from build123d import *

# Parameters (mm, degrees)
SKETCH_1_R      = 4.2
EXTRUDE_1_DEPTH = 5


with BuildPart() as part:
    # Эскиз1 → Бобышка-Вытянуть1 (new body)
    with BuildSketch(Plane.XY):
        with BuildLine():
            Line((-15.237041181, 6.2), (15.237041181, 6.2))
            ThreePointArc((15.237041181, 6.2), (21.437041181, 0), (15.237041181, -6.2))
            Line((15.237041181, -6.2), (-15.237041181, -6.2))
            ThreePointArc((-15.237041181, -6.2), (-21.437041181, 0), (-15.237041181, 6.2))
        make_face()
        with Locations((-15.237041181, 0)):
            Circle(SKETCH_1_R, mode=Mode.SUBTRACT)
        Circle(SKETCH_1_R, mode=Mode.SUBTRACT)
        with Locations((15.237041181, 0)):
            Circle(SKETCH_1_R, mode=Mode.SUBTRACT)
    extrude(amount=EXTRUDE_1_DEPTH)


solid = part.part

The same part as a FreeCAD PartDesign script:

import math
import FreeCAD as App
import Part
import Sketcher
from FreeCAD import Vector

doc = App.newDocument("Part")
params = doc.addObject("Spreadsheet::Sheet", "Params")
for row, (alias, value) in enumerate([
    ("sketch1_diameter", "8.4 mm"),
    ("sketch1_radius", "6.2 mm"),
    ("pad1_length", "5 mm"),
], start=1):
    params.set(f"A{row}", alias)
    params.set(f"B{row}", "=" + value)
    params.setAlias(f"B{row}", alias)

body = doc.addObject("PartDesign::Body", "Body")

sketch1 = doc.addObject("Sketcher::SketchObject", "Sketch")
body.addObject(sketch1)
sketch1.AttachmentSupport = (doc.XY_Plane, [""])
sketch1.MapMode = "FlatFace"
sketch1.addGeometry(Part.LineSegment(Vector(15.2, 6.2, 0), Vector(-15.2, 6.2, 0)), False)
sketch1.addGeometry(Part.ArcOfCircle(Part.Circle(Vector(-15.2, 0, 0), Vector(0, 0, 1), 6.2), math.radians(90), math.radians(270)), False)
sketch1.addGeometry(Part.LineSegment(Vector(-15.2, -6.2, 0), Vector(15.2, -6.2, 0)), False)
sketch1.addGeometry(Part.ArcOfCircle(Part.Circle(Vector(15.2, 0, 0), Vector(0, 0, 1), 6.2), math.radians(-90), math.radians(90)), False)
sketch1.addGeometry(Part.Circle(Vector(15.2, 0, 0), Vector(0, 0, 1), 4.2), False)
sketch1.addGeometry(Part.Circle(Vector(0, 0, 0), Vector(0, 0, 1), 4.2), False)
sketch1.addGeometry(Part.Circle(Vector(-15.2, 0, 0), Vector(0, 0, 1), 4.2), False)
sketch1.addConstraint(Sketcher.Constraint("Tangent", 0, 2, 1, 1))
sketch1.addConstraint(Sketcher.Constraint("Tangent", 1, 2, 2, 1))
sketch1.addConstraint(Sketcher.Constraint("Tangent", 2, 2, 3, 1))
sketch1.addConstraint(Sketcher.Constraint("Tangent", 3, 2, 0, 1))
sketch1.addConstraint(Sketcher.Constraint("Horizontal", 0))
sketch1.addConstraint(Sketcher.Constraint("Horizontal", 2))
sketch1.addConstraint(Sketcher.Constraint("Coincident", 5, 3, -1, 1))
sketch1.addConstraint(Sketcher.Constraint("Coincident", 4, 3, 3, 3))
sketch1.addConstraint(Sketcher.Constraint("Coincident", 6, 3, 1, 3))
sketch1.addConstraint(Sketcher.Constraint("Equal", 4, 5))
sketch1.addConstraint(Sketcher.Constraint("Equal", 5, 6))
sketch1.addConstraint(Sketcher.Constraint("Symmetric", 1, 3, 3, 3, -1, 1))
sketch1.addConstraint(Sketcher.Constraint("Diameter", 4, 8.4))
sketch1.addConstraint(Sketcher.Constraint("Radius", 1, 6.2))
sketch1.addConstraint(Sketcher.Constraint("DistanceX", 0, 2, 0, 1, 30.474082))
sketch1.setExpression("Constraints[12]", "Params.sketch1_diameter")
sketch1.setExpression("Constraints[13]", "Params.sketch1_radius")
pad1 = doc.addObject("PartDesign::Pad", "Pad")
body.addObject(pad1)
pad1.Profile = sketch1
pad1.setExpression("Length", "Params.pad1_length")

doc.recompute()
